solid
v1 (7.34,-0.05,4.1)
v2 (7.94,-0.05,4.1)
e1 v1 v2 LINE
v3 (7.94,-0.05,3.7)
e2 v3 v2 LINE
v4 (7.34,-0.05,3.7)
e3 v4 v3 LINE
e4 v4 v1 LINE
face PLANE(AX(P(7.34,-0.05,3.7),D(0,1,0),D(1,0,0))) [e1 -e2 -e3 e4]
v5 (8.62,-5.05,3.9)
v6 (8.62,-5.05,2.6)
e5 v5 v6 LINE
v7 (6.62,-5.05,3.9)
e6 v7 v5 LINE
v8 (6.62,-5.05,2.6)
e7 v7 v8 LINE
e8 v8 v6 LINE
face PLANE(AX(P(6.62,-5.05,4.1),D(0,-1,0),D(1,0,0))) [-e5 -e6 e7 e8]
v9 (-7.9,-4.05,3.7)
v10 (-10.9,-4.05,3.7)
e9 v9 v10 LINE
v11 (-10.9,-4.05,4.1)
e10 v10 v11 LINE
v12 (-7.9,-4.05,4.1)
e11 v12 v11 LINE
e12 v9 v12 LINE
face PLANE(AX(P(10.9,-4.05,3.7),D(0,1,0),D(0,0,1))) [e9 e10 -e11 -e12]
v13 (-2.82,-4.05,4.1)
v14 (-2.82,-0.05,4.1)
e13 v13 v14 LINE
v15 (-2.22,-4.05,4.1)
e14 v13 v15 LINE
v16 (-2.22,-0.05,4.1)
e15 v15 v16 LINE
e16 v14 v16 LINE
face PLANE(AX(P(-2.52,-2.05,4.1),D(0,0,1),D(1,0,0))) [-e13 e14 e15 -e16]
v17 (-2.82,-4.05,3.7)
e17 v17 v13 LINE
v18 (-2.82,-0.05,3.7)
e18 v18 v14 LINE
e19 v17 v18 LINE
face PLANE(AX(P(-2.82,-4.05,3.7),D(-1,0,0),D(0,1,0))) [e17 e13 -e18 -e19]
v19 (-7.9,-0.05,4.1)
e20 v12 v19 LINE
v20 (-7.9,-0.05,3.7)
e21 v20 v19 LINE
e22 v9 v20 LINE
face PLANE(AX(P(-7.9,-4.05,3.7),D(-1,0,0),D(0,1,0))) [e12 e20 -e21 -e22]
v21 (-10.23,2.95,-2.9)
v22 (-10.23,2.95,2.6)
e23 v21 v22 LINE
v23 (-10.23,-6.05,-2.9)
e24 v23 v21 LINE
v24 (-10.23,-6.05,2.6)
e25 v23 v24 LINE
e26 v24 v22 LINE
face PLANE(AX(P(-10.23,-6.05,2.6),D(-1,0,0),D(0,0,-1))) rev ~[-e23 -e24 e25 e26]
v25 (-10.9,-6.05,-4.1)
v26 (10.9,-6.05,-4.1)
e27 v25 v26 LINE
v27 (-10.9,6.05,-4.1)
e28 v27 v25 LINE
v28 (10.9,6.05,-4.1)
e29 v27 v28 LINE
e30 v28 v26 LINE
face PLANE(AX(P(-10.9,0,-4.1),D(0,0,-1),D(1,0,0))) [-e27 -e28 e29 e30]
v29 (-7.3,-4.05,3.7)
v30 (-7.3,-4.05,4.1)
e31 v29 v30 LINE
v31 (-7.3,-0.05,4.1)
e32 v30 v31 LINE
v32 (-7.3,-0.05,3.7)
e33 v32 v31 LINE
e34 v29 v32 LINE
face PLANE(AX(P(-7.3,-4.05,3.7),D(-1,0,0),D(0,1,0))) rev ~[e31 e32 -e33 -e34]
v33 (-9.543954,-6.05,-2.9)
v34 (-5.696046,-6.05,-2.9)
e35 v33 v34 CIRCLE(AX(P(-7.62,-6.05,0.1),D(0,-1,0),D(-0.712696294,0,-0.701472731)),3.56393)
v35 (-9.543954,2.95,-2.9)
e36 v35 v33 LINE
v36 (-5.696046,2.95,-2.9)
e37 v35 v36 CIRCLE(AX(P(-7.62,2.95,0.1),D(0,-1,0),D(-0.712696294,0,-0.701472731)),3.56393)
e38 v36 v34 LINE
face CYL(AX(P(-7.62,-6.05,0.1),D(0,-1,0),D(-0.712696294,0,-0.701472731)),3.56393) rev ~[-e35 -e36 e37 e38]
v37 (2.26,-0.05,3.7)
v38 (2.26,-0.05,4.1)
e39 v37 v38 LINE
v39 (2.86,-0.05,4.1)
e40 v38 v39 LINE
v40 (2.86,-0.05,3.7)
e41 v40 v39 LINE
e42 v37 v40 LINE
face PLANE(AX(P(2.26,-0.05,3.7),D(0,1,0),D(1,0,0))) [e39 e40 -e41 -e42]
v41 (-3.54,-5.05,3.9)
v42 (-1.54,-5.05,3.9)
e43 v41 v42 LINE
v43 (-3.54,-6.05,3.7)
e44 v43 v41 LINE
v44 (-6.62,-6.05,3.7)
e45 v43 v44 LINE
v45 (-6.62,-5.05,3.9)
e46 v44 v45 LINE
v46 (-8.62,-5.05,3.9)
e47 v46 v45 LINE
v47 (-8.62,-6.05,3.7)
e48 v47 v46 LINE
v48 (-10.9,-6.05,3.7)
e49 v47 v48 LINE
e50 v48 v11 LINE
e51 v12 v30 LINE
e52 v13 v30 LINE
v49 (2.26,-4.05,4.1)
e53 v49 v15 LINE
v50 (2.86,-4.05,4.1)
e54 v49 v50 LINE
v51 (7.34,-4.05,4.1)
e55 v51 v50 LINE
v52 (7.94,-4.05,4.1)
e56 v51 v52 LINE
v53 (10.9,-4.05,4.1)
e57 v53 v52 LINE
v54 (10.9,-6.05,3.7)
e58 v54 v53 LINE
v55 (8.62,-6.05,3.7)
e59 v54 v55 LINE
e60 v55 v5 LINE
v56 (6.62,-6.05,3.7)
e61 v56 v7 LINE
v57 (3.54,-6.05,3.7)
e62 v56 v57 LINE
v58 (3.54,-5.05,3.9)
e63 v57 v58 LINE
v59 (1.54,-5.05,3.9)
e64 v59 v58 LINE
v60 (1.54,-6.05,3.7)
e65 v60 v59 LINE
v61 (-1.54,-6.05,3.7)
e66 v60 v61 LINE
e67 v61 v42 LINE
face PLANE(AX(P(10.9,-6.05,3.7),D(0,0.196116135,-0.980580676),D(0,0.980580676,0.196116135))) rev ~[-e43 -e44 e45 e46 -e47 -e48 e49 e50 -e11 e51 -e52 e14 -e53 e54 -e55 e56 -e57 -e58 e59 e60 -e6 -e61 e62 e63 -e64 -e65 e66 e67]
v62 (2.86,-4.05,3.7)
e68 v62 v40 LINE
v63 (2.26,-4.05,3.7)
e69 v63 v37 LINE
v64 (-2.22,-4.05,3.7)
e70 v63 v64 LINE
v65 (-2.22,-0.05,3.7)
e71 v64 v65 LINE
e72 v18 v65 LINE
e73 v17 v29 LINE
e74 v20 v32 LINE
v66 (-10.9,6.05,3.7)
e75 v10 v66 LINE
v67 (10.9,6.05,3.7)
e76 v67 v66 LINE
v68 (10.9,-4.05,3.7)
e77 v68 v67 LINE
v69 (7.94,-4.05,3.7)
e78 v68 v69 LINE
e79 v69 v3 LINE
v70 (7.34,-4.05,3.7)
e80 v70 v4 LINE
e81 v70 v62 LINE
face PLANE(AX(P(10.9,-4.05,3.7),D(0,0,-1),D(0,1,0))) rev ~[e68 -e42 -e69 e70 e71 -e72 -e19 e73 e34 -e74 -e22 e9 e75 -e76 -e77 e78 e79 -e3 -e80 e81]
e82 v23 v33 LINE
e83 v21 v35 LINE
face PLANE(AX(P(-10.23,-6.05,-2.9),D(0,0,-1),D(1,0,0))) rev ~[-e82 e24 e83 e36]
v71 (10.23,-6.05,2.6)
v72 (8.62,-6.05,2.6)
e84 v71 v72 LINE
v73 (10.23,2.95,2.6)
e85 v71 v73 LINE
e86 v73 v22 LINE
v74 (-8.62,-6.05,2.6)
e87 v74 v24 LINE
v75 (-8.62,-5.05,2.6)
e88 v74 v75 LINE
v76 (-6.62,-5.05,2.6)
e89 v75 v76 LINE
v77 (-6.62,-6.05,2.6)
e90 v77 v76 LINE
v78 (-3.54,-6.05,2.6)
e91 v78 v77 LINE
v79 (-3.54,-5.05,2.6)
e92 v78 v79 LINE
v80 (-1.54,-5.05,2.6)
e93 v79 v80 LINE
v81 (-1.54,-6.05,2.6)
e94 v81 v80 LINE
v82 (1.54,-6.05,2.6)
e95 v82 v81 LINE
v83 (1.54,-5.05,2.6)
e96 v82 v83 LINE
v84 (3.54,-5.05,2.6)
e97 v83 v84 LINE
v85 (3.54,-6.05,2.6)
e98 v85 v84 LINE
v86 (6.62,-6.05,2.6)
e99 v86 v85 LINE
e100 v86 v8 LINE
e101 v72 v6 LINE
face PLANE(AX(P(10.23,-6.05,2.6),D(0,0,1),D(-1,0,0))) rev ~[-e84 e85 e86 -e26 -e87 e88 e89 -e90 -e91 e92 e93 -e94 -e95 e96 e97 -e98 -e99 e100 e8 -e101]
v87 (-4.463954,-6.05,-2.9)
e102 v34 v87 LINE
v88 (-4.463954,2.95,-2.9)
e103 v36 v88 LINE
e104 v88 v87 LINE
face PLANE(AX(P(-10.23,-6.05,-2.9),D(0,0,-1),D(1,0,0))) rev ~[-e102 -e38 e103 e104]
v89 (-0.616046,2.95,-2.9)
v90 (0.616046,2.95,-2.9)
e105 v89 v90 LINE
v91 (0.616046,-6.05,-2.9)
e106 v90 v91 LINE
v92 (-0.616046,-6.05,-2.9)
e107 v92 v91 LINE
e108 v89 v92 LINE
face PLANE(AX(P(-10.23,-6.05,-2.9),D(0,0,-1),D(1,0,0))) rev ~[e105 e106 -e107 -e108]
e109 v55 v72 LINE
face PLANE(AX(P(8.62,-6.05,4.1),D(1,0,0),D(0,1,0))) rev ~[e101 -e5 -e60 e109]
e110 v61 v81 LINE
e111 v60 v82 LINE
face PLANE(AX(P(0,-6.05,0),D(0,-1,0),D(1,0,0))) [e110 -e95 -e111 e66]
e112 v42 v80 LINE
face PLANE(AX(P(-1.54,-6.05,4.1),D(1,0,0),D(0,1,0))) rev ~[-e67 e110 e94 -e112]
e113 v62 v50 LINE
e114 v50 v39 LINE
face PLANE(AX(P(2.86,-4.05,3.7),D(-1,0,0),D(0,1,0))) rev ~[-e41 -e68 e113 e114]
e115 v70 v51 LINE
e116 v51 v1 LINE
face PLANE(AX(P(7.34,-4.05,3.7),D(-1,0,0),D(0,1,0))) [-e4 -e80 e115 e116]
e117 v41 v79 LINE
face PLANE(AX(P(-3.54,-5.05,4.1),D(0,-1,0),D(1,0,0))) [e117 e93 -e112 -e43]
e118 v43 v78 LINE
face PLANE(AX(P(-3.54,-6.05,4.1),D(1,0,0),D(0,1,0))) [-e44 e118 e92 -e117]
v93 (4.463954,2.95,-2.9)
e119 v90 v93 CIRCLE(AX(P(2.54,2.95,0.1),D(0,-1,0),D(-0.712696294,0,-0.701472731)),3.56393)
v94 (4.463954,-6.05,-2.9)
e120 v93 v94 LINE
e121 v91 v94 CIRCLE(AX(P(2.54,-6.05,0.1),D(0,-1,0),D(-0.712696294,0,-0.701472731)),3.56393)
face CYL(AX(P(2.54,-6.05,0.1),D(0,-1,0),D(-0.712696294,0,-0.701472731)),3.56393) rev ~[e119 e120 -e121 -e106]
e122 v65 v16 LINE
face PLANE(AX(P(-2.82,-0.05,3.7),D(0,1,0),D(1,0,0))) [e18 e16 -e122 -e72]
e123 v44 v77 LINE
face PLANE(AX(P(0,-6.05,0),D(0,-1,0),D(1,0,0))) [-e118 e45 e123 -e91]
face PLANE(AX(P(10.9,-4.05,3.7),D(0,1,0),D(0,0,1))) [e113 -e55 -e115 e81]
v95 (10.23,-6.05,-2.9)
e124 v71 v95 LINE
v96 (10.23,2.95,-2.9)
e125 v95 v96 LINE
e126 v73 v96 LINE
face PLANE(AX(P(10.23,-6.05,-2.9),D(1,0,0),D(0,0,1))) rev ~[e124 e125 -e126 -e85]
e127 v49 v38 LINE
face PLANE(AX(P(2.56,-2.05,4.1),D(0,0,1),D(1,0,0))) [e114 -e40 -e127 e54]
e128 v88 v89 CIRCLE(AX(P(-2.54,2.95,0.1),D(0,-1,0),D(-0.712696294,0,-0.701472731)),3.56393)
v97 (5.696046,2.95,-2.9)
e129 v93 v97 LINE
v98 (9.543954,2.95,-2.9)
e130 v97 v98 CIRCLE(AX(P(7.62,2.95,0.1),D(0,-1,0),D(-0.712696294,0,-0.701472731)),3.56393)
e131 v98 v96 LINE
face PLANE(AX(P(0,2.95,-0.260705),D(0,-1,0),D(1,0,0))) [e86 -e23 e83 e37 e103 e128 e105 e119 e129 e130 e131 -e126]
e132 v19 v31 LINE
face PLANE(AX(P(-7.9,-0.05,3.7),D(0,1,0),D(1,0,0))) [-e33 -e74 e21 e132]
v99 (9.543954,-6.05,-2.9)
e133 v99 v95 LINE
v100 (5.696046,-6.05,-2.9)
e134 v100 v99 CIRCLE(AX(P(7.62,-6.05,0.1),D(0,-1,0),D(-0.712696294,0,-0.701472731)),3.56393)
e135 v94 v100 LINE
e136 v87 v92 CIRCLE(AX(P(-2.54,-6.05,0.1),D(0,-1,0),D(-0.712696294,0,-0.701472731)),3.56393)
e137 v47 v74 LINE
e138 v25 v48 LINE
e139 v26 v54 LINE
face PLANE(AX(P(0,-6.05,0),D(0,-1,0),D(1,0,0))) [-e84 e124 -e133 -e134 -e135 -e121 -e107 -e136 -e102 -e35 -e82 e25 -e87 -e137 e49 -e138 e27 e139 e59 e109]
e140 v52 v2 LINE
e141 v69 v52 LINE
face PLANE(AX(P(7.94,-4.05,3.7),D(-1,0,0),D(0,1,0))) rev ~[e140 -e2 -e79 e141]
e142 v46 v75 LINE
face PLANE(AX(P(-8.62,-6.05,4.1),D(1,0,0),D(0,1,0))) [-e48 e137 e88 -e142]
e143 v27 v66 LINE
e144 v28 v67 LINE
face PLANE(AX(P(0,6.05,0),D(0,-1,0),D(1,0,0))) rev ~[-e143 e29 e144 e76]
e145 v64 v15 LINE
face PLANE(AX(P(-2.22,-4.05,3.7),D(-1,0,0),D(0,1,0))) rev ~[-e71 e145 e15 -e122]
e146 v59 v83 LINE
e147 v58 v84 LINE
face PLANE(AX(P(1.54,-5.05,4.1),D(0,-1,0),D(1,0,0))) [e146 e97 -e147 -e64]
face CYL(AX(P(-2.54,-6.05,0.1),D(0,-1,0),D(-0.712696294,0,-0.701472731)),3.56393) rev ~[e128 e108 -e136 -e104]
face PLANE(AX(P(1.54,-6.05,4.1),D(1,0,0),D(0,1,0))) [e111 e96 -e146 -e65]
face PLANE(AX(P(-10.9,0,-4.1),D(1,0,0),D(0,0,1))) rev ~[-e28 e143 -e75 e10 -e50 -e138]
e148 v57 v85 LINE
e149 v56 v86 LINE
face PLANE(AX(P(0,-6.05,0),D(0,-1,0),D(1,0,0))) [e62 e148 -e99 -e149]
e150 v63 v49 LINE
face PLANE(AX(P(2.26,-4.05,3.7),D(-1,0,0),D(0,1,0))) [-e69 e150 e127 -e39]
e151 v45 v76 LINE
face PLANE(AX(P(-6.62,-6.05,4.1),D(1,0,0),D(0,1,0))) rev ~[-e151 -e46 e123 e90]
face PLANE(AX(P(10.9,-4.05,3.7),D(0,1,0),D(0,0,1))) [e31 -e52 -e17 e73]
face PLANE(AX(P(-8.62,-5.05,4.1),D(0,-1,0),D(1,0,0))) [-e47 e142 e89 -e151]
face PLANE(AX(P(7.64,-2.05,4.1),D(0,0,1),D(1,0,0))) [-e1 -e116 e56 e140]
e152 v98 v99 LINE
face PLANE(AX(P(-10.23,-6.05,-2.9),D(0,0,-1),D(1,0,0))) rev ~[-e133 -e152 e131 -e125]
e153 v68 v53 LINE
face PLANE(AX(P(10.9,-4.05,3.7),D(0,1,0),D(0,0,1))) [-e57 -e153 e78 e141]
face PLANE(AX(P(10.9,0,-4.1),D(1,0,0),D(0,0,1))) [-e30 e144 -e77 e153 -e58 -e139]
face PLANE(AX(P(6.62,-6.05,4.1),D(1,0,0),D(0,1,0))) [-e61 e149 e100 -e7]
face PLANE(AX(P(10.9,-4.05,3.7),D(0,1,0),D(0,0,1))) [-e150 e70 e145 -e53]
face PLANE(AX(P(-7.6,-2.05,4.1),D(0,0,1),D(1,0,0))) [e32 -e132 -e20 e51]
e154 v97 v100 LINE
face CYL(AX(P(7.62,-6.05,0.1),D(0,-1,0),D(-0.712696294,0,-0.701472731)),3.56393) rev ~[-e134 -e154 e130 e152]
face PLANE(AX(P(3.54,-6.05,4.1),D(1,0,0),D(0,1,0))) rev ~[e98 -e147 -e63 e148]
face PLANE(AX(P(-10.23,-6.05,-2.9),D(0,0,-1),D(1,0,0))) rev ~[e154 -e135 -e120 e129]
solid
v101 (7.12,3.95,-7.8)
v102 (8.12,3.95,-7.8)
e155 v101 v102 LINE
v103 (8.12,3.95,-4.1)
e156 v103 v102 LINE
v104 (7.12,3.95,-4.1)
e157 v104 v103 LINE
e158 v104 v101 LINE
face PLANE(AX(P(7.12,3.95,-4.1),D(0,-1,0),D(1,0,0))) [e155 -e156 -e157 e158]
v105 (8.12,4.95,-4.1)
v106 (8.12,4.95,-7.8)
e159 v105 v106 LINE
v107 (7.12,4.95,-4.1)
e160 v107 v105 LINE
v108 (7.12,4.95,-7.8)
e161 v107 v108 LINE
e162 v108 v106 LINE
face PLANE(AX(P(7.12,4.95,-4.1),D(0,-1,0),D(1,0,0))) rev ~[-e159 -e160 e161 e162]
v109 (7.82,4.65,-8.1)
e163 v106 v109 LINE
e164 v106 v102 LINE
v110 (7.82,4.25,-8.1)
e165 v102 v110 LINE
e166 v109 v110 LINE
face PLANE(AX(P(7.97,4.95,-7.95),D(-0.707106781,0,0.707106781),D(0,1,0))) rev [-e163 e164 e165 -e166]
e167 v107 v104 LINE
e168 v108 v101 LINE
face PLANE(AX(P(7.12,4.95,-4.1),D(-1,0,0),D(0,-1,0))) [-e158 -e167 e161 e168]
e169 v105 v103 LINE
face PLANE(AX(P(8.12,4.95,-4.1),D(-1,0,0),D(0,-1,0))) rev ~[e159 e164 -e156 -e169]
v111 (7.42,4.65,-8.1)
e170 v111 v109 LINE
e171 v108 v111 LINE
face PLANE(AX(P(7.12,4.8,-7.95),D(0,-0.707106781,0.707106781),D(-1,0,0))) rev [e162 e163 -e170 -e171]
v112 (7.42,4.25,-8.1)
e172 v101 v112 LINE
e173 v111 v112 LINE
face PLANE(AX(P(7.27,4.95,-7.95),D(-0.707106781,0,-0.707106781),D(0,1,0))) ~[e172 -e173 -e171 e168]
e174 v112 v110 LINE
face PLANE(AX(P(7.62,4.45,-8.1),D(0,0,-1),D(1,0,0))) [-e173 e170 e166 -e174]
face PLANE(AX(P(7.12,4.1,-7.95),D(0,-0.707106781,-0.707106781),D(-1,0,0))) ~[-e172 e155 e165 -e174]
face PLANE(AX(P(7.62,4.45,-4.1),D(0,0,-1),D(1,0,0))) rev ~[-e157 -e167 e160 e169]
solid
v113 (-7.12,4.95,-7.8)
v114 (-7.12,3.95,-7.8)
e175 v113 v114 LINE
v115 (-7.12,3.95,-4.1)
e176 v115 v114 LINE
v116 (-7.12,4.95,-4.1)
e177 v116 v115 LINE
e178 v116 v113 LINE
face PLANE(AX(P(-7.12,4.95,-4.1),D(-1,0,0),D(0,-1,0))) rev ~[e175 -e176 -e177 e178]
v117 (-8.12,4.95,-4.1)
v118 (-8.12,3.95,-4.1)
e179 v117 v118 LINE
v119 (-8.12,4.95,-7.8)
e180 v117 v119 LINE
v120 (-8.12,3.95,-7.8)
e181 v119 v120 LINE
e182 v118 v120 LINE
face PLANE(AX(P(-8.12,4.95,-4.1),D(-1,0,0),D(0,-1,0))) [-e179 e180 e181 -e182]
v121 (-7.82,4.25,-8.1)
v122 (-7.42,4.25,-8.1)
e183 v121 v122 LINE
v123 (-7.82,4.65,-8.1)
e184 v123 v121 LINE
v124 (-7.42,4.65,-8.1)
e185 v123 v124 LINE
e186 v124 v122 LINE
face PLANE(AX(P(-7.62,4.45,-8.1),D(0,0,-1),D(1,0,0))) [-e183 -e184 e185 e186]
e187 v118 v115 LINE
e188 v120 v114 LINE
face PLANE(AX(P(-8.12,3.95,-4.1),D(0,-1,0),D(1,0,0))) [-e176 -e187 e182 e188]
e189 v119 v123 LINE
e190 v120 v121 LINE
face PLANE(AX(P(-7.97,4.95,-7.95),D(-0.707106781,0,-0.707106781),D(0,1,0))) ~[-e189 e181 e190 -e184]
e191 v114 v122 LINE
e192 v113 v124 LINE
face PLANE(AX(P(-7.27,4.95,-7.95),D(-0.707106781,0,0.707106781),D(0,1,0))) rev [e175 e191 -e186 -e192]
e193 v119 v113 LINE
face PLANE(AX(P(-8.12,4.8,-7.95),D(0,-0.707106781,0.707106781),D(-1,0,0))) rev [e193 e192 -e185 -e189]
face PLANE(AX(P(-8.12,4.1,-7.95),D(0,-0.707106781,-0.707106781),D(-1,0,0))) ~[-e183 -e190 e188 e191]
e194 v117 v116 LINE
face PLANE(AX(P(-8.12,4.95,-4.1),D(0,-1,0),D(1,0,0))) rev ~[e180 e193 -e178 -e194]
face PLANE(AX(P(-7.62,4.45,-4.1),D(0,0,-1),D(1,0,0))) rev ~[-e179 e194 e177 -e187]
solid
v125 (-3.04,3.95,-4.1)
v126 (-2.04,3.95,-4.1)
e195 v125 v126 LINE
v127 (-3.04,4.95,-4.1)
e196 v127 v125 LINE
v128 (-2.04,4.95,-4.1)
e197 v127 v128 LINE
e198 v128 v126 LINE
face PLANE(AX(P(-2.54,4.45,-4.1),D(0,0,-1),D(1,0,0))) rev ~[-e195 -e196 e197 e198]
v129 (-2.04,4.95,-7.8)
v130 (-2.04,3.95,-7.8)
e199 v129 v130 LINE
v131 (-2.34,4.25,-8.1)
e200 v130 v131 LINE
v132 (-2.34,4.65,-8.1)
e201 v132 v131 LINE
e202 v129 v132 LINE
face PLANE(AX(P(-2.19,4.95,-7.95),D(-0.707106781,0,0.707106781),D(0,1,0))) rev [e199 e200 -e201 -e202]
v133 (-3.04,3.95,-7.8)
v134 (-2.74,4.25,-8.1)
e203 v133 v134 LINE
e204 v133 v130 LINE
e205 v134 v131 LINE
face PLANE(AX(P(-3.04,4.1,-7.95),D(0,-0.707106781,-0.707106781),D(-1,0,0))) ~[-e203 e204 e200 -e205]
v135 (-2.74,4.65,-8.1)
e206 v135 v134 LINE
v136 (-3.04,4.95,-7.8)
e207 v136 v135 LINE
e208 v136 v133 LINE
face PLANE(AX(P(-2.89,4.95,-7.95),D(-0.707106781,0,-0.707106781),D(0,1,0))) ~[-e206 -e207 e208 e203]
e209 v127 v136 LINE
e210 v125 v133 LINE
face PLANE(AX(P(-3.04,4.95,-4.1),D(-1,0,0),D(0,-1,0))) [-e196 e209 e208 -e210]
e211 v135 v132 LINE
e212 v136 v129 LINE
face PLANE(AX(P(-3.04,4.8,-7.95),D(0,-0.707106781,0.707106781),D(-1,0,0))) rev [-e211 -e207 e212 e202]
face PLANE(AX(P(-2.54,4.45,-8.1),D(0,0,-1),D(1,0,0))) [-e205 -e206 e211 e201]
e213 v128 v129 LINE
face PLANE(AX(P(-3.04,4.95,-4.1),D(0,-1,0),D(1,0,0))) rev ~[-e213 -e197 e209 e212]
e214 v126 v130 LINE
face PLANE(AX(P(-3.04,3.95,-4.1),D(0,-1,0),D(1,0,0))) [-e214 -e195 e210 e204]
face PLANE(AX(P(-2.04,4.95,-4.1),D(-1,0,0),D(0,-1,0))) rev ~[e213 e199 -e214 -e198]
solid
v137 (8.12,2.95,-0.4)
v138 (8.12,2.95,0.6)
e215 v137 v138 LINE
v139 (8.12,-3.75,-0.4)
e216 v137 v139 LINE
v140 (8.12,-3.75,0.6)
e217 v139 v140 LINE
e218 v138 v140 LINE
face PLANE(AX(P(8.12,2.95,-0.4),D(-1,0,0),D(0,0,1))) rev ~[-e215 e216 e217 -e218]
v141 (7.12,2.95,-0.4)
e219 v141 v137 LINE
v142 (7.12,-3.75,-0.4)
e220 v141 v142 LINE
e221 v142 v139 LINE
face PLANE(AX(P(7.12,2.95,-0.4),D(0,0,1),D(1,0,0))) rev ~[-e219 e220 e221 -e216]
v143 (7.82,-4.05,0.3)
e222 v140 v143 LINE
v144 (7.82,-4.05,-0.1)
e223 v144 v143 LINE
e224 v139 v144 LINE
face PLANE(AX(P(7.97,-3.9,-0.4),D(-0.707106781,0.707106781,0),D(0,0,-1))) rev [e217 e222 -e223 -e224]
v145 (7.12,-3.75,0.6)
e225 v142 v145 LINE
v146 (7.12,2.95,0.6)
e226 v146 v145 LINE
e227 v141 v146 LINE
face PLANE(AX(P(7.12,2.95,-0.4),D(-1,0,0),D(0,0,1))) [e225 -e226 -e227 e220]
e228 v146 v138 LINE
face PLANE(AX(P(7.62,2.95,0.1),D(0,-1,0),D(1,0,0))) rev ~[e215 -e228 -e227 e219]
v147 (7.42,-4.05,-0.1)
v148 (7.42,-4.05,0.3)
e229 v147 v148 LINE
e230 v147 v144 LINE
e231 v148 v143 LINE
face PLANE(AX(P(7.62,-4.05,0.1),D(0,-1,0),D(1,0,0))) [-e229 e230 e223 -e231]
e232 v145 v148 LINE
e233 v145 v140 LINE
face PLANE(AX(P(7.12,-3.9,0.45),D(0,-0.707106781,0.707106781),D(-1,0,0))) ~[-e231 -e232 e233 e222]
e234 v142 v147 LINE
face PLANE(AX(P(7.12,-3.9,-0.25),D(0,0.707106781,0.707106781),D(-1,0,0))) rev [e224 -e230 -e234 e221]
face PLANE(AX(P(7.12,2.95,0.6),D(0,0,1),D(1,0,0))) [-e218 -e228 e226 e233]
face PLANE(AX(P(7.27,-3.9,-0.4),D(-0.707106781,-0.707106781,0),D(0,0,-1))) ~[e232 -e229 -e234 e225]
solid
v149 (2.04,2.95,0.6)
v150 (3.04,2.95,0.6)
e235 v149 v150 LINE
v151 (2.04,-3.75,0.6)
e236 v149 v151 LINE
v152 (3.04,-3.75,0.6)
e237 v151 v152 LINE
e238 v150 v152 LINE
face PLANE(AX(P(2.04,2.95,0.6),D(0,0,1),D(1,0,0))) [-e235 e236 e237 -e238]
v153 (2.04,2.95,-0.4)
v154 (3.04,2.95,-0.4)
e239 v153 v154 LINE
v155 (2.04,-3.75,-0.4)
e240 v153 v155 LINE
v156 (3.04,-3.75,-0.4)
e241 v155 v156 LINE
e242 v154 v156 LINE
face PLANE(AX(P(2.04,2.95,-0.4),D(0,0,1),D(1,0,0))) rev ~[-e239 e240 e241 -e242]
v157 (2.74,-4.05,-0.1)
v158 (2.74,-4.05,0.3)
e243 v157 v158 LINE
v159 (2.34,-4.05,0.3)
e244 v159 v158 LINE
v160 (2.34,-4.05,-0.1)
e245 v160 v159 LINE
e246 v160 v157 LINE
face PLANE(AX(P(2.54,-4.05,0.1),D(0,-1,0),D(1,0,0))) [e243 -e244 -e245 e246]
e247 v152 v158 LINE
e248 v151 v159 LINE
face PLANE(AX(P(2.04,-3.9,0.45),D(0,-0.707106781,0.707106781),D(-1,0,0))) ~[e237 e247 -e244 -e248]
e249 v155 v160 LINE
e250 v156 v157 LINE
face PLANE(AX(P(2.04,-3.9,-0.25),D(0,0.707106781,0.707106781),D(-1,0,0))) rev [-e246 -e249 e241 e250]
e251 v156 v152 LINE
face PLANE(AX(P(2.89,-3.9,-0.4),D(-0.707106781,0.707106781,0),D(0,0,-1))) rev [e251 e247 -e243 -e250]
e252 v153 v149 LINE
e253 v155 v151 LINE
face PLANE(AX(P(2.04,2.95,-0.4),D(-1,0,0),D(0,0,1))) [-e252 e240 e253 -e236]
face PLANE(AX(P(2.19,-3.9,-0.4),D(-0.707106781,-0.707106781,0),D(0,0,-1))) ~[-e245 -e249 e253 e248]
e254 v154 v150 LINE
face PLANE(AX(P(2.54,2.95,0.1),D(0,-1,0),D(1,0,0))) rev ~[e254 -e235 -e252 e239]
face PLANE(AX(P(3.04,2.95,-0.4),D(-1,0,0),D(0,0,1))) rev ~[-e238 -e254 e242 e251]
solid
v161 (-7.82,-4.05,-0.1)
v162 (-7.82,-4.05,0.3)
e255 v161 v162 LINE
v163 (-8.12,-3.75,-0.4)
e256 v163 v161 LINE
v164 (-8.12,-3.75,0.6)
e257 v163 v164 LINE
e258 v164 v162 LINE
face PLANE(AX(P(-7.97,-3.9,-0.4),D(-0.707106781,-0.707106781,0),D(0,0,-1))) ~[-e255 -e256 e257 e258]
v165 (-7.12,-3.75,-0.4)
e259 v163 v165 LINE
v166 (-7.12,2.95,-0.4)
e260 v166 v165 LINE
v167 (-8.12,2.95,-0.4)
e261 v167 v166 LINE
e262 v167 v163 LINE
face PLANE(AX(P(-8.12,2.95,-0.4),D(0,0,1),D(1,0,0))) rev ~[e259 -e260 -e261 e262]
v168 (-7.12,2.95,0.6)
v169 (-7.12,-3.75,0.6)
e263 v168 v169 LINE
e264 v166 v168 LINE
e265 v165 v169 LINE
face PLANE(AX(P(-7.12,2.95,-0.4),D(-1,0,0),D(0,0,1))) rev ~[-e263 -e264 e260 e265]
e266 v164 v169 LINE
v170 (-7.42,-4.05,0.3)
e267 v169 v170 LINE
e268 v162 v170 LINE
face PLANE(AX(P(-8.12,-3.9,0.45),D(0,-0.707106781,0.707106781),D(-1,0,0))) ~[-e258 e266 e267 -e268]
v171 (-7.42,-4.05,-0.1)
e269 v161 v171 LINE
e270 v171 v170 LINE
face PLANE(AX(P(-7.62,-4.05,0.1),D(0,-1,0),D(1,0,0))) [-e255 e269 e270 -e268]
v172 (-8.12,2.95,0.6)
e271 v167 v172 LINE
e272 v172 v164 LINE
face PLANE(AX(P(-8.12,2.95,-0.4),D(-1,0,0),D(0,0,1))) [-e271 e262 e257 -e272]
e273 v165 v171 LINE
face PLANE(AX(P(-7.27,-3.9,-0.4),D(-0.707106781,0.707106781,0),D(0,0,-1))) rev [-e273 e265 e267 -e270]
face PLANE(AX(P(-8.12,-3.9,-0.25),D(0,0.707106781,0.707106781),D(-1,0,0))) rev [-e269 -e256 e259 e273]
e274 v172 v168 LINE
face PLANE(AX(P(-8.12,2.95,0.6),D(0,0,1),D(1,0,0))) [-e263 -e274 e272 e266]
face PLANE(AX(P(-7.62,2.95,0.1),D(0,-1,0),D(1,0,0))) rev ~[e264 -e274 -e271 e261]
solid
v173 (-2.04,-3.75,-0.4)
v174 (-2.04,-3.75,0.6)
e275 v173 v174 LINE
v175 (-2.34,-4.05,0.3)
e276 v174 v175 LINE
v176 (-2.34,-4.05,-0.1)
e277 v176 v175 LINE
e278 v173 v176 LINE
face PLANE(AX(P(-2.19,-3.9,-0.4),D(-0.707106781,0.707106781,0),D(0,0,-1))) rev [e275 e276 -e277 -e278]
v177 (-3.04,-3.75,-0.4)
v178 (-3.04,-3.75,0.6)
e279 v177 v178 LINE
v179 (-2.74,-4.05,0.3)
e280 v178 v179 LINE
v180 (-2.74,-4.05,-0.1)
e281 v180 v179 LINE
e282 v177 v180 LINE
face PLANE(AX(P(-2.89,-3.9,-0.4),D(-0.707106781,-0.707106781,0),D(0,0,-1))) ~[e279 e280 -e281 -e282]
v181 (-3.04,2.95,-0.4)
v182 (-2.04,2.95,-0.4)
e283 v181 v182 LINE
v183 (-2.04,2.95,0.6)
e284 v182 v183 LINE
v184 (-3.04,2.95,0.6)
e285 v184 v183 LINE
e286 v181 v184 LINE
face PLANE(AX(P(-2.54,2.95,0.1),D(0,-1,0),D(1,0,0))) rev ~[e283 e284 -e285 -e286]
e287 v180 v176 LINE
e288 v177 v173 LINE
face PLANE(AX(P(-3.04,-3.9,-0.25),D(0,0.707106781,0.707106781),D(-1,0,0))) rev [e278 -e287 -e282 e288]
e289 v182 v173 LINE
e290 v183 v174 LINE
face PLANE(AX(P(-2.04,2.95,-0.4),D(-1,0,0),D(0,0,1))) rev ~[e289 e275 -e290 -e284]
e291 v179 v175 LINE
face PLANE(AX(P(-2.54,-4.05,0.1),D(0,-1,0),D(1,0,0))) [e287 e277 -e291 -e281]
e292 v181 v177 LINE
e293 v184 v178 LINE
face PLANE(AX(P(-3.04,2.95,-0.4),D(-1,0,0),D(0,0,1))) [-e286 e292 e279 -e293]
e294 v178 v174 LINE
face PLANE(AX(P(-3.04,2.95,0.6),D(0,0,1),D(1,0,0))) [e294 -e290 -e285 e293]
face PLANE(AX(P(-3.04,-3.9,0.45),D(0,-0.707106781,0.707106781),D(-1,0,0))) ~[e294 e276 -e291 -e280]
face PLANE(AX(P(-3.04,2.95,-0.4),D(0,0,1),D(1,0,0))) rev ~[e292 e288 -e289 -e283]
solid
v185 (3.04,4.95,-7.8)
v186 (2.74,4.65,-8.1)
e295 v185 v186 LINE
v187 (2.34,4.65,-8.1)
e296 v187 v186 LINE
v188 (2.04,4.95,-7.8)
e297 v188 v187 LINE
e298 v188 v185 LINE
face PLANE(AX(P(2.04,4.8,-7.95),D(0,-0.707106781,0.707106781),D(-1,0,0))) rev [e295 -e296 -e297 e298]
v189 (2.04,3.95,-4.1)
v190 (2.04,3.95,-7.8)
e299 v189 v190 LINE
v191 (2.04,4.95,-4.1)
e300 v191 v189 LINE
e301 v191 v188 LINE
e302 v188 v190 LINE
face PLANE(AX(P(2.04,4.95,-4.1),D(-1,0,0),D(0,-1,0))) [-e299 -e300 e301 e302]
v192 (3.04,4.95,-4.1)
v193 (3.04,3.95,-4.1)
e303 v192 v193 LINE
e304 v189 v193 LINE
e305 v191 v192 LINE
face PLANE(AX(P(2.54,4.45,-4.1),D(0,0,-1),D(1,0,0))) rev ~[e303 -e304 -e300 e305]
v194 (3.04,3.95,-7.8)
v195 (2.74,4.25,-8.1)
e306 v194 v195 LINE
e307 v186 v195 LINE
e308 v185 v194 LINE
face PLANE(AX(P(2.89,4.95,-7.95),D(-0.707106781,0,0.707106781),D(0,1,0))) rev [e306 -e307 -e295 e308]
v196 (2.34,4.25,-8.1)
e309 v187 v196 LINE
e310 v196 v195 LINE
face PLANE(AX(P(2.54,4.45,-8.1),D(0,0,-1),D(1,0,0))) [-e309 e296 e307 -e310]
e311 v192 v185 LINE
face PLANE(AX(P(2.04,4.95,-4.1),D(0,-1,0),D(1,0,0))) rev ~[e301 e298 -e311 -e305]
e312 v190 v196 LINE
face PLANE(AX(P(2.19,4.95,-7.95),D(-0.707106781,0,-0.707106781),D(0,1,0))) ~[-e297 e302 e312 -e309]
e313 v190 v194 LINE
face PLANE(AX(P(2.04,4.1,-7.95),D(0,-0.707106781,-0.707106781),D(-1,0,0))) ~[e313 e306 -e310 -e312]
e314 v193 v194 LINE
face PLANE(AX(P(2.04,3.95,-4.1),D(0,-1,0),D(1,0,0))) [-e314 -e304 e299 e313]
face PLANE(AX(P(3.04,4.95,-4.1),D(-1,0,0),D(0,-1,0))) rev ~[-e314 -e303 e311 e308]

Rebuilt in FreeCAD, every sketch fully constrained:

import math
import FreeCAD as App
import Part
import Sketcher
Q = App.Units.Quantity


def edges_at(feature, points):
    """Names of the edges that pass closest to the given points."""
    edges = feature.Shape.Edges
    near = lambda p: min(range(len(edges)), key=lambda i: edges[i].distToShape(Part.Vertex(*p))[0])
    return sorted({f"Edge{near(p) + 1}" for p in points})


def add_polygon(sketch, points):
    """Adds a closed chain of lines whose ends are joined by coincident constraints."""
    first, n = sketch.GeometryCount, len(points)
    for a, b in zip(points, points[1:] + points[:1]):
        sketch.addGeometry(Part.LineSegment(App.Vector(*a, 0), App.Vector(*b, 0)), False)
    for i in range(n):
        sketch.addConstraint(Sketcher.Constraint("Coincident", first + i, 2, first + (i + 1) % n, 1))

doc = App.newDocument("Part")
body = doc.addObject("PartDesign::Body", "Body")

sketch1 = body.newObject("Sketcher::SketchObject", "Sketch")
sketch1.AttachmentSupport = (doc.getObject("XZ_Plane"), [""])
sketch1.MapMode = "FlatFace"
add_polygon(sketch1, [(-10.9, 4.1), (-10.9, -4.1), (10.9, -4.1), (10.9, 4.1)])
sketch1.addConstraint(Sketcher.Constraint("Vertical", 0))
sketch1.addConstraint(Sketcher.Constraint("Horizontal", 1))
sketch1.addConstraint(Sketcher.Constraint("Vertical", 2))
sketch1.addConstraint(Sketcher.Constraint("Horizontal", 3))
sketch1.addConstraint(Sketcher.Constraint("Symmetric", 0, 2, 2, 2, -1, 1))
sketch1.addConstraint(Sketcher.Constraint("DistanceX", 1, 1, 1, 2, Q("21.8 mm")))
sketch1.addConstraint(Sketcher.Constraint("DistanceY", 0, 2, 0, 1, Q("8.2 mm")))
pad1 = body.newObject("PartDesign::Pad", "Pad")
pad1.Profile = sketch1
pad1.Length = 12.1
pad1.Midplane = True

sketch2 = body.newObject("Sketcher::SketchObject", "Sketch001")
sketch2.AttachmentSupport = (doc.getObject("XZ_Plane"), [""])
sketch2.MapMode = "FlatFace"
sketch2.AttachmentOffset = App.Placement(App.Vector(0, 0, 6.05), App.Rotation())
sketch2.addGeometry(Part.LineSegment(App.Vector(10.23, 2.6, 0), App.Vector(-10.23, 2.6, 0)), False)
sketch2.addGeometry(Part.LineSegment(App.Vector(-10.23, 2.6, 0), App.Vector(-10.23, -2.4, 0)), False)
sketch2.addGeometry(Part.LineSegment(App.Vector(-10.23, -2.4, 0), App.Vector(-10.16, -2.4, 0)), False)
sketch2.addGeometry(Part.ArcOfCircle(Part.Circle(App.Vector(-7.62, 0.1, 0), App.Vector(0, 0, 1), 3.56393), math.radians(-135.454719), math.radians(-44.545281)), False)
sketch2.addGeometry(Part.ArcOfCircle(Part.Circle(App.Vector(-2.54, 0.1, 0), App.Vector(0, 0, 1), 3.56393), math.radians(-135.454719), math.radians(-44.545281)), False)
sketch2.addGeometry(Part.ArcOfCircle(Part.Circle(App.Vector(2.54, 0.1, 0), App.Vector(0, 0, 1), 3.56393), math.radians(-135.454719), math.radians(-44.545281)), False)
sketch2.addGeometry(Part.ArcOfCircle(Part.Circle(App.Vector(7.62, 0.1, 0), App.Vector(0, 0, 1), 3.56393), math.radians(-135.454719), math.radians(-44.545281)), False)
sketch2.addGeometry(Part.LineSegment(App.Vector(10.16, -2.4, 0), App.Vector(10.23, -2.4, 0)), False)
sketch2.addGeometry(Part.LineSegment(App.Vector(10.23, -2.4, 0), App.Vector(10.23, 2.6, 0)), False)
sketch2.addConstraint(Sketcher.Constraint("Coincident", 0, 2, 1, 1))
sketch2.addConstraint(Sketcher.Constraint("Coincident", 1, 2, 2, 1))
sketch2.addConstraint(Sketcher.Constraint("Coincident", 2, 2, 3, 1))
sketch2.addConstraint(Sketcher.Constraint("Coincident", 3, 2, 4, 1))
sketch2.addConstraint(Sketcher.Constraint("Coincident", 4, 2, 5, 1))
sketch2.addConstraint(Sketcher.Constraint("Coincident", 5, 2, 6, 1))
sketch2.addConstraint(Sketcher.Constraint("Coincident", 6, 2, 7, 1))
sketch2.addConstraint(Sketcher.Constraint("Coincident", 7, 2, 8, 1))
sketch2.addConstraint(Sketcher.Constraint("Coincident", 8, 2, 0, 1))
sketch2.addConstraint(Sketcher.Constraint("Horizontal", 0))
sketch2.addConstraint(Sketcher.Constraint("Vertical", 1))
sketch2.addConstraint(Sketcher.Constraint("Horizontal", 2))
sketch2.addConstraint(Sketcher.Constraint("Horizontal", 7))
sketch2.addConstraint(Sketcher.Constraint("Vertical", 8))
sketch2.addConstraint(Sketcher.Constraint("Equal", 3, 4))
sketch2.addConstraint(Sketcher.Constraint("Equal", 4, 5))
sketch2.addConstraint(Sketcher.Constraint("Equal", 5, 6))
sketch2.addConstraint(Sketcher.Constraint("Symmetric", 4, 3, 5, 3, -2))
sketch2.addConstraint(Sketcher.Constraint("Symmetric", 3, 3, 6, 3, -2))
sketch2.addConstraint(Sketcher.Constraint("Symmetric", 1, 2, 7, 2, -2))
sketch2.addConstraint(Sketcher.Constraint("Horizontal", 3, 3, 4, 3))
sketch2.addConstraint(Sketcher.Constraint("Horizontal", 2, 2, 3, 2))
sketch2.addConstraint(Sketcher.Constraint("Horizontal", 3, 2, 4, 2))
sketch2.addConstraint(Sketcher.Constraint("DistanceY", 1, 2, 1, 1, Q("5 mm")))
sketch2.addConstraint(Sketcher.Constraint("DistanceX", 0, 2, 0, 1, Q("20.46 mm")))
sketch2.addConstraint(Sketcher.Constraint("DistanceX", 2, 1, 2, 2, Q("0.07 mm")))
sketch2.addConstraint(Sketcher.Constraint("DistanceY", -1, 1, 3, 3, Q("0.1 mm")))
sketch2.addConstraint(Sketcher.Constraint("DistanceY", -1, 1, 0, 2, Q("2.6 mm")))
pocket1 = body.newObject("PartDesign::Pocket", "Pocket")
pocket1.Profile = sketch2
pocket1.Length = 9

sketch3 = body.newObject("Sketcher::SketchObject", "Sketch002")
sketch3.AttachmentSupport = (doc.getObject("XY_Plane"), [""])
sketch3.MapMode = "FlatFace"
sketch3.AttachmentOffset = App.Placement(App.Vector(0, 0, 4.1), App.Rotation())
add_polygon(sketch3, [(-3.54, -5.05), (-3.54, -6.05), (-1.54, -6.05), (-1.54, -5.05)])
add_polygon(sketch3, [(1.54, -5.05), (1.54, -6.05), (3.54, -6.05), (3.54, -5.05)])
add_polygon(sketch3, [(6.62, -5.05), (6.62, -6.05), (8.62, -6.05), (8.62, -5.05)])
add_polygon(sketch3, [(-8.62, -5.05), (-8.62, -6.05), (-6.62, -6.05), (-6.62, -5.05)])
sketch3.addConstraint(Sketcher.Constraint("Vertical", 0))
sketch3.addConstraint(Sketcher.Constraint("Horizontal", 1))
sketch3.addConstraint(Sketcher.Constraint("Vertical", 2))
sketch3.addConstraint(Sketcher.Constraint("Horizontal", 3))
sketch3.addConstraint(Sketcher.Constraint("Vertical", 4))
sketch3.addConstraint(Sketcher.Constraint("Horizontal", 5))
sketch3.addConstraint(Sketcher.Constraint("Vertical", 6))
sketch3.addConstraint(Sketcher.Constraint("Horizontal", 7))
sketch3.addConstraint(Sketcher.Constraint("Vertical", 8))
sketch3.addConstraint(Sketcher.Constraint("Horizontal", 9))
sketch3.addConstraint(Sketcher.Constraint("Vertical", 10))
sketch3.addConstraint(Sketcher.Constraint("Horizontal", 11))
sketch3.addConstraint(Sketcher.Constraint("Vertical", 12))
sketch3.addConstraint(Sketcher.Constraint("Horizontal", 13))
sketch3.addConstraint(Sketcher.Constraint("Vertical", 14))
sketch3.addConstraint(Sketcher.Constraint("Horizontal", 15))
sketch3.addConstraint(Sketcher.Constraint("Symmetric", 1, 2, 4, 2, -2))
sketch3.addConstraint(Sketcher.Constraint("Symmetric", 3, 2, 6, 2, -2))
sketch3.addConstraint(Sketcher.Constraint("Symmetric", 9, 2, 12, 2, -2))
sketch3.addConstraint(Sketcher.Constraint("Symmetric", 11, 2, 14, 2, -2))
sketch3.addConstraint(Sketcher.Constraint("Horizontal", 5, 2, 8, 2))
sketch3.addConstraint(Sketcher.Constraint("Horizontal", 7, 2, 10, 2))
sketch3.addConstraint(Sketcher.Constraint("Equal", 7, 9))
sketch3.addConstraint(Sketcher.Constraint("DistanceX", 1, 1, 1, 2, Q("2 mm")))
sketch3.addConstraint(Sketcher.Constraint("DistanceY", 0, 2, 0, 1, Q("1 mm")))
sketch3.addConstraint(Sketcher.Constraint("DistanceX", 0, 2, -1, 1, Q("3.54 mm")))
sketch3.addConstraint(Sketcher.Constraint("DistanceY", 0, 2, -1, 1, Q("6.05 mm")))
sketch3.addConstraint(Sketcher.Constraint("DistanceX", -1, 1, 8, 2, Q("6.62 mm")))
pocket2 = body.newObject("PartDesign::Pocket", "Pocket001")
pocket2.Profile = sketch3
pocket2.Length = 2

sketch4 = body.newObject("Sketcher::SketchObject", "Sketch003")
sketch4.AttachmentSupport = (doc.getObject("XZ_Plane"), [""])
sketch4.MapMode = "FlatFace"
sketch4.AttachmentOffset = App.Placement(App.Vector(0, 0, 6.05), App.Rotation())
add_polygon(sketch4, [(-10.23, -2.4), (-10.23, -2.9), (10.23, -2.9), (10.23, -2.4)])
sketch4.addConstraint(Sketcher.Constraint("Vertical", 0))
sketch4.addConstraint(Sketcher.Constraint("Horizontal", 1))
sketch4.addConstraint(Sketcher.Constraint("Vertical", 2))
sketch4.addConstraint(Sketcher.Constraint("Horizontal", 3))
sketch4.addConstraint(Sketcher.Constraint("DistanceY", 0, 2, 0, 1, Q("0.5 mm")))
sketch4.addConstraint(Sketcher.Constraint("DistanceX", 1, 1, 1, 2, Q("20.46 mm")))
sketch4.addConstraint(Sketcher.Constraint("DistanceY", 0, 2, -1, 1, Q("2.9 mm")))
sketch4.addConstraint(Sketcher.Constraint("DistanceX", 0, 2, -1, 1, Q("10.23 mm")))
pocket3 = body.newObject("PartDesign::Pocket", "Pocket002")
pocket3.Profile = sketch4
pocket3.Length = 9

sketch5 = body.newObject("Sketcher::SketchObject", "Sketch004")
sketch5.AttachmentSupport = (doc.getObject("YZ_Plane"), [""])
sketch5.MapMode = "FlatFace"
sketch5.AttachmentOffset = App.Placement(App.Vector(0, 0, 10.9), App.Rotation())
add_polygon(sketch5, [(-4.05, 4.1), (-6.05, 4.1), (-6.05, 3.7)])
add_polygon(sketch5, [(-4.05, 4.1), (-4.05, 3.7), (6.05, 3.7), (6.05, 4.1)])
sketch5.addConstraint(Sketcher.Constraint("Horizontal", 0))
sketch5.addConstraint(Sketcher.Constraint("Vertical", 1))
sketch5.addConstraint(Sketcher.Constraint("Vertical", 3))
sketch5.addConstraint(Sketcher.Constraint("Horizontal", 4))
sketch5.addConstraint(Sketcher.Constraint("Vertical", 5))
sketch5.addConstraint(Sketcher.Constraint("Horizontal", 6))
sketch5.addConstraint(Sketcher.Constraint("Coincident", 6, 2, 2, 2))
sketch5.addConstraint(Sketcher.Constraint("Symmetric", 1, 2, 4, 2, -2))
sketch5.addConstraint(Sketcher.Constraint("DistanceX", 0, 2, 0, 1, Q("2 mm")))
sketch5.addConstraint(Sketcher.Constraint("DistanceX", 4, 1, 4, 2, Q("10.1 mm")))
sketch5.addConstraint(Sketcher.Constraint("DistanceY", 1, 2, 1, 1, Q("0.4 mm")))
sketch5.addConstraint(Sketcher.Constraint("DistanceY", -1, 1, 0, 2, Q("4.1 mm")))
pocket4 = body.newObject("PartDesign::Pocket", "Pocket003")
pocket4.Profile = sketch5
pocket4.Type = "ThroughAll"

sketch6 = body.newObject("Sketcher::SketchObject", "Sketch005")
sketch6.AttachmentSupport = (doc.getObject("XY_Plane"), [""])
sketch6.MapMode = "FlatFace"
sketch6.AttachmentOffset = App.Placement(App.Vector(0, 0, 3.7), App.Rotation())
add_polygon(sketch6, [(-7.9, -0.05), (-7.9, -4.05), (-7.3, -4.05), (-7.3, -0.05)])
add_polygon(sketch6, [(-2.82, -0.05), (-2.82, -4.05), (-2.22, -4.05), (-2.22, -0.05)])
add_polygon(sketch6, [(2.26, -0.05), (2.26, -4.05), (2.86, -4.05), (2.86, -0.05)])
add_polygon(sketch6, [(7.34, -0.05), (7.34, -4.05), (7.94, -4.05), (7.94, -0.05)])
sketch6.addConstraint(Sketcher.Constraint("Vertical", 0))
sketch6.addConstraint(Sketcher.Constraint("Horizontal", 1))
sketch6.addConstraint(Sketcher.Constraint("Vertical", 2))
sketch6.addConstraint(Sketcher.Constraint("Horizontal", 3))
sketch6.addConstraint(Sketcher.Constraint("Vertical", 4))
sketch6.addConstraint(Sketcher.Constraint("Horizontal", 5))
sketch6.addConstraint(Sketcher.Constraint("Vertical", 6))
sketch6.addConstraint(Sketcher.Constraint("Horizontal", 7))
sketch6.addConstraint(Sketcher.Constraint("Vertical", 8))
sketch6.addConstraint(Sketcher.Constraint("Horizontal", 9))
sketch6.addConstraint(Sketcher.Constraint("Vertical", 10))
sketch6.addConstraint(Sketcher.Constraint("Horizontal", 11))
sketch6.addConstraint(Sketcher.Constraint("Vertical", 12))
sketch6.addConstraint(Sketcher.Constraint("Horizontal", 13))
sketch6.addConstraint(Sketcher.Constraint("Vertical", 14))
sketch6.addConstraint(Sketcher.Constraint("Horizontal", 15))
sketch6.addConstraint(Sketcher.Constraint("Horizontal", 1, 2, 4, 2))
sketch6.addConstraint(Sketcher.Constraint("Horizontal", 3, 2, 6, 2))
sketch6.addConstraint(Sketcher.Constraint("Horizontal", 5, 2, 8, 2))
sketch6.addConstraint(Sketcher.Constraint("Horizontal", 7, 2, 10, 2))
sketch6.addConstraint(Sketcher.Constraint("Horizontal", 9, 2, 12, 2))
sketch6.addConstraint(Sketcher.Constraint("Horizontal", 11, 2, 14, 2))
sketch6.addConstraint(Sketcher.Constraint("Equal", 3, 5))
sketch6.addConstraint(Sketcher.Constraint("Equal", 7, 9))
sketch6.addConstraint(Sketcher.Constraint("Equal", 11, 13))
sketch6.addConstraint(Sketcher.Constraint("DistanceY", 0, 2, 0, 1, Q("4 mm")))
sketch6.addConstraint(Sketcher.Constraint("DistanceX", 1, 1, 1, 2, Q("0.6 mm")))
sketch6.addConstraint(Sketcher.Constraint("DistanceX", 0, 2, -1, 1, Q("7.9 mm")))
sketch6.addConstraint(Sketcher.Constraint("DistanceY", 0, 2, -1, 1, Q("4.05 mm")))
sketch6.addConstraint(Sketcher.Constraint("DistanceX", 4, 2, -1, 1, Q("2.82 mm")))
sketch6.addConstraint(Sketcher.Constraint("DistanceX", -1, 1, 8, 2, Q("2.26 mm")))
sketch6.addConstraint(Sketcher.Constraint("DistanceX", -1, 1, 12, 2, Q("7.34 mm")))
pad2 = body.newObject("PartDesign::Pad", "Pad001")
pad2.Profile = sketch6
pad2.Length = 0.4
body2 = doc.addObject("PartDesign::Body", "Body001")

sketch7 = body2.newObject("Sketcher::SketchObject", "Sketch006")
sketch7.AttachmentSupport = (doc.getObject("XZ_Plane001"), [""])
sketch7.MapMode = "FlatFace"
sketch7.AttachmentOffset = App.Placement(App.Vector(0, 0, -2.95), App.Rotation())
add_polygon(sketch7, [(-8.12, 0.6), (-8.12, -0.4), (-7.12, -0.4), (-7.12, 0.6)])
sketch7.addConstraint(Sketcher.Constraint("Vertical", 0))
sketch7.addConstraint(Sketcher.Constraint("Horizontal", 1))
sketch7.addConstraint(Sketcher.Constraint("Vertical", 2))
sketch7.addConstraint(Sketcher.Constraint("Horizontal", 3))
sketch7.addConstraint(Sketcher.Constraint("Equal", 3, 0))
sketch7.addConstraint(Sketcher.Constraint("DistanceX", 1, 1, 1, 2, Q("1 mm")))
sketch7.addConstraint(Sketcher.Constraint("DistanceY", 0, 2, -1, 1, Q("0.4 mm")))
sketch7.addConstraint(Sketcher.Constraint("DistanceX", 0, 2, -1, 1, Q("8.12 mm")))
pad3 = body2.newObject("PartDesign::Pad", "Pad002")
pad3.Profile = sketch7
pad3.Length = 7
doc.recompute()

chamfer = body2.newObject("PartDesign::Chamfer", "Chamfer")
chamfer.Base = (pad3, edges_at(pad3, [
    (-7.62, -4.05, -0.4),
    (-7.12, -4.05, 0.1),
    (-7.62, -4.05, 0.6),
    (-8.12, -4.05, 0.1),
]))
chamfer.Size = 0.3
body3 = doc.addObject("PartDesign::Body", "Body002")

sketch8 = body3.newObject("Sketcher::SketchObject", "Sketch007")
sketch8.AttachmentSupport = (doc.getObject("XZ_Plane002"), [""])
sketch8.MapMode = "FlatFace"
sketch8.AttachmentOffset = App.Placement(App.Vector(0, 0, -2.95), App.Rotation())
add_polygon(sketch8, [(-3.04, 0.6), (-3.04, -0.4), (-2.04, -0.4), (-2.04, 0.6)])
sketch8.addConstraint(Sketcher.Constraint("Vertical", 0))
sketch8.addConstraint(Sketcher.Constraint("Horizontal", 1))
sketch8.addConstraint(Sketcher.Constraint("Vertical", 2))
sketch8.addConstraint(Sketcher.Constraint("Horizontal", 3))
sketch8.addConstraint(Sketcher.Constraint("Equal", 3, 0))
sketch8.addConstraint(Sketcher.Constraint("DistanceX", 1, 1, 1, 2, Q("1 mm")))
sketch8.addConstraint(Sketcher.Constraint("DistanceY", 0, 2, -1, 1, Q("0.4 mm")))
sketch8.addConstraint(Sketcher.Constraint("DistanceX", 0, 2, -1, 1, Q("3.04 mm")))
pad4 = body3.newObject("PartDesign::Pad", "Pad003")
pad4.Profile = sketch8
pad4.Length = 7
doc.recompute()

chamfer2 = body3.newObject("PartDesign::Chamfer", "Chamfer001")
chamfer2.Base = (pad4, edges_at(pad4, [
    (-2.54, -4.05, -0.4),
    (-2.04, -4.05, 0.1),
    (-2.54, -4.05, 0.6),
    (-3.04, -4.05, 0.1),
]))
chamfer2.Size = 0.3
body4 = doc.addObject("PartDesign::Body", "Body003")

sketch9 = body4.newObject("Sketcher::SketchObject", "Sketch008")
sketch9.AttachmentSupport = (doc.getObject("XZ_Plane003"), [""])
sketch9.MapMode = "FlatFace"
sketch9.AttachmentOffset = App.Placement(App.Vector(0, 0, -2.95), App.Rotation())
add_polygon(sketch9, [(2.04, 0.6), (2.04, -0.4), (3.04, -0.4), (3.04, 0.6)])
sketch9.addConstraint(Sketcher.Constraint("Vertical", 0))
sketch9.addConstraint(Sketcher.Constraint("Horizontal", 1))
sketch9.addConstraint(Sketcher.Constraint("Vertical", 2))
sketch9.addConstraint(Sketcher.Constraint("Horizontal", 3))
sketch9.addConstraint(Sketcher.Constraint("Equal", 3, 0))
sketch9.addConstraint(Sketcher.Constraint("DistanceX", 1, 1, 1, 2, Q("1 mm")))
sketch9.addConstraint(Sketcher.Constraint("DistanceY", 0, 2, -1, 1, Q("0.4 mm")))
sketch9.addConstraint(Sketcher.Constraint("DistanceX", -1, 1, 0, 2, Q("2.04 mm")))
pad5 = body4.newObject("PartDesign::Pad", "Pad004")
pad5.Profile = sketch9
pad5.Length = 7
doc.recompute()

chamfer3 = body4.newObject("PartDesign::Chamfer", "Chamfer002")
chamfer3.Base = (pad5, edges_at(pad5, [
    (2.54, -4.05, -0.4),
    (3.04, -4.05, 0.1),
    (2.54, -4.05, 0.6),
    (2.04, -4.05, 0.1),
]))
chamfer3.Size = 0.3
body5 = doc.addObject("PartDesign::Body", "Body004")

sketch10 = body5.newObject("Sketcher::SketchObject", "Sketch009")
sketch10.AttachmentSupport = (doc.getObject("XZ_Plane004"), [""])
sketch10.MapMode = "FlatFace"
sketch10.AttachmentOffset = App.Placement(App.Vector(0, 0, -2.95), App.Rotation())
add_polygon(sketch10, [(7.12, 0.6), (7.12, -0.4), (8.12, -0.4), (8.12, 0.6)])
sketch10.addConstraint(Sketcher.Constraint("Vertical", 0))
sketch10.addConstraint(Sketcher.Constraint("Horizontal", 1))
sketch10.addConstraint(Sketcher.Constraint("Vertical", 2))
sketch10.addConstraint(Sketcher.Constraint("Horizontal", 3))
sketch10.addConstraint(Sketcher.Constraint("Equal", 3, 0))
sketch10.addConstraint(Sketcher.Constraint("DistanceX", 1, 1, 1, 2, Q("1 mm")))
sketch10.addConstraint(Sketcher.Constraint("DistanceY", 0, 2, -1, 1, Q("0.4 mm")))
sketch10.addConstraint(Sketcher.Constraint("DistanceX", -1, 1, 0, 2, Q("7.12 mm")))
pad6 = body5.newObject("PartDesign::Pad", "Pad005")
pad6.Profile = sketch10
pad6.Length = 7
doc.recompute()

chamfer4 = body5.newObject("PartDesign::Chamfer", "Chamfer003")
chamfer4.Base = (pad6, edges_at(pad6, [
    (7.62, -4.05, -0.4),
    (8.12, -4.05, 0.1),
    (7.62, -4.05, 0.6),
    (7.12, -4.05, 0.1),
]))
chamfer4.Size = 0.3
body6 = doc.addObject("PartDesign::Body", "Body005")

sketch11 = body6.newObject("Sketcher::SketchObject", "Sketch010")
sketch11.AttachmentSupport = (doc.getObject("XY_Plane005"), [""])
sketch11.MapMode = "FlatFace"
sketch11.AttachmentOffset = App.Placement(App.Vector(0, 0, -4.1), App.Rotation())
add_polygon(sketch11, [(-8.12, 3.95), (-8.12, 4.95), (-7.12, 4.95), (-7.12, 3.95)])
sketch11.addConstraint(Sketcher.Constraint("Vertical", 0))
sketch11.addConstraint(Sketcher.Constraint("Horizontal", 1))
sketch11.addConstraint(Sketcher.Constraint("Vertical", 2))
sketch11.addConstraint(Sketcher.Constraint("Horizontal", 3))
sketch11.addConstraint(Sketcher.Constraint("Equal", 3, 0))
sketch11.addConstraint(Sketcher.Constraint("DistanceX", 1, 1, 1, 2, Q("1 mm")))
sketch11.addConstraint(Sketcher.Constraint("DistanceX", 0, 2, -1, 1, Q("8.12 mm")))
sketch11.addConstraint(Sketcher.Constraint("DistanceY", -1, 1, 0, 2, Q("4.95 mm")))
pad7 = body6.newObject("PartDesign::Pad", "Pad006")
pad7.Profile = sketch11
pad7.Length = 4
pad7.Reversed = True
doc.recompute()

chamfer5 = body6.newObject("PartDesign::Chamfer", "Chamfer004")
chamfer5.Base = (pad7, edges_at(pad7, [
    (-7.62, 3.95, -8.1),
    (-8.12, 4.45, -8.1),
    (-7.62, 4.95, -8.1),
    (-7.12, 4.45, -8.1),
]))
chamfer5.Size = 0.3
body7 = doc.addObject("PartDesign::Body", "Body006")

sketch12 = body7.newObject("Sketcher::SketchObject", "Sketch011")
sketch12.AttachmentSupport = (doc.getObject("XY_Plane006"), [""])
sketch12.MapMode = "FlatFace"
sketch12.AttachmentOffset = App.Placement(App.Vector(0, 0, -4.1), App.Rotation())
add_polygon(sketch12, [(-3.04, 3.95), (-3.04, 4.95), (-2.04, 4.95), (-2.04, 3.95)])
sketch12.addConstraint(Sketcher.Constraint("Vertical", 0))
sketch12.addConstraint(Sketcher.Constraint("Horizontal", 1))
sketch12.addConstraint(Sketcher.Constraint("Vertical", 2))
sketch12.addConstraint(Sketcher.Constraint("Horizontal", 3))
sketch12.addConstraint(Sketcher.Constraint("Equal", 3, 0))
sketch12.addConstraint(Sketcher.Constraint("DistanceX", 1, 1, 1, 2, Q("1 mm")))
sketch12.addConstraint(Sketcher.Constraint("DistanceX", 0, 2, -1, 1, Q("3.04 mm")))
sketch12.addConstraint(Sketcher.Constraint("DistanceY", -1, 1, 0, 2, Q("4.95 mm")))
pad8 = body7.newObject("PartDesign::Pad", "Pad007")
pad8.Profile = sketch12
pad8.Length = 4
pad8.Reversed = True
doc.recompute()

chamfer6 = body7.newObject("PartDesign::Chamfer", "Chamfer005")
chamfer6.Base = (pad8, edges_at(pad8, [
    (-2.54, 3.95, -8.1),
    (-3.04, 4.45, -8.1),
    (-2.54, 4.95, -8.1),
    (-2.04, 4.45, -8.1),
]))
chamfer6.Size = 0.3
body8 = doc.addObject("PartDesign::Body", "Body007")

sketch13 = body8.newObject("Sketcher::SketchObject", "Sketch012")
sketch13.AttachmentSupport = (doc.getObject("XY_Plane007"), [""])
sketch13.MapMode = "FlatFace"
sketch13.AttachmentOffset = App.Placement(App.Vector(0, 0, -4.1), App.Rotation())
add_polygon(sketch13, [(7.12, 3.95), (7.12, 4.95), (8.12, 4.95), (8.12, 3.95)])
sketch13.addConstraint(Sketcher.Constraint("Vertical", 0))
sketch13.addConstraint(Sketcher.Constraint("Horizontal", 1))
sketch13.addConstraint(Sketcher.Constraint("Vertical", 2))
sketch13.addConstraint(Sketcher.Constraint("Horizontal", 3))
sketch13.addConstraint(Sketcher.Constraint("Equal", 3, 0))
sketch13.addConstraint(Sketcher.Constraint("DistanceX", 1, 1, 1, 2, Q("1 mm")))
sketch13.addConstraint(Sketcher.Constraint("DistanceX", -1, 1, 0, 2, Q("7.12 mm")))
sketch13.addConstraint(Sketcher.Constraint("DistanceY", -1, 1, 0, 2, Q("4.95 mm")))
pad9 = body8.newObject("PartDesign::Pad", "Pad008")
pad9.Profile = sketch13
pad9.Length = 4
pad9.Reversed = True
doc.recompute()

chamfer7 = body8.newObject("PartDesign::Chamfer", "Chamfer006")
chamfer7.Base = (pad9, edges_at(pad9, [
    (8.12, 4.45, -8.1),
    (7.62, 3.95, -8.1),
    (7.12, 4.45, -8.1),
    (7.62, 4.95, -8.1),
]))
chamfer7.Size = 0.3
body9 = doc.addObject("PartDesign::Body", "Body008")

sketch14 = body9.newObject("Sketcher::SketchObject", "Sketch013")
sketch14.AttachmentSupport = (doc.getObject("XY_Plane008"), [""])
sketch14.MapMode = "FlatFace"
sketch14.AttachmentOffset = App.Placement(App.Vector(0, 0, -4.1), App.Rotation())
add_polygon(sketch14, [(2.04, 3.95), (2.04, 4.95), (3.04, 4.95), (3.04, 3.95)])
sketch14.addConstraint(Sketcher.Constraint("Vertical", 0))
sketch14.addConstraint(Sketcher.Constraint("Horizontal", 1))
sketch14.addConstraint(Sketcher.Constraint("Vertical", 2))
sketch14.addConstraint(Sketcher.Constraint("Horizontal", 3))
sketch14.addConstraint(Sketcher.Constraint("Equal", 3, 0))
sketch14.addConstraint(Sketcher.Constraint("DistanceX", 1, 1, 1, 2, Q("1 mm")))
sketch14.addConstraint(Sketcher.Constraint("DistanceX", -1, 1, 0, 2, Q("2.04 mm")))
sketch14.addConstraint(Sketcher.Constraint("DistanceY", -1, 1, 0, 2, Q("4.95 mm")))
pad10 = body9.newObject("PartDesign::Pad", "Pad009")
pad10.Profile = sketch14
pad10.Length = 4
pad10.Reversed = True
doc.recompute()

chamfer8 = body9.newObject("PartDesign::Chamfer", "Chamfer007")
chamfer8.Base = (pad10, edges_at(pad10, [
    (3.04, 4.45, -8.1),
    (2.54, 3.95, -8.1),
    (2.04, 4.45, -8.1),
    (2.54, 4.95, -8.1),
]))
chamfer8.Size = 0.3

doc.recompute()
